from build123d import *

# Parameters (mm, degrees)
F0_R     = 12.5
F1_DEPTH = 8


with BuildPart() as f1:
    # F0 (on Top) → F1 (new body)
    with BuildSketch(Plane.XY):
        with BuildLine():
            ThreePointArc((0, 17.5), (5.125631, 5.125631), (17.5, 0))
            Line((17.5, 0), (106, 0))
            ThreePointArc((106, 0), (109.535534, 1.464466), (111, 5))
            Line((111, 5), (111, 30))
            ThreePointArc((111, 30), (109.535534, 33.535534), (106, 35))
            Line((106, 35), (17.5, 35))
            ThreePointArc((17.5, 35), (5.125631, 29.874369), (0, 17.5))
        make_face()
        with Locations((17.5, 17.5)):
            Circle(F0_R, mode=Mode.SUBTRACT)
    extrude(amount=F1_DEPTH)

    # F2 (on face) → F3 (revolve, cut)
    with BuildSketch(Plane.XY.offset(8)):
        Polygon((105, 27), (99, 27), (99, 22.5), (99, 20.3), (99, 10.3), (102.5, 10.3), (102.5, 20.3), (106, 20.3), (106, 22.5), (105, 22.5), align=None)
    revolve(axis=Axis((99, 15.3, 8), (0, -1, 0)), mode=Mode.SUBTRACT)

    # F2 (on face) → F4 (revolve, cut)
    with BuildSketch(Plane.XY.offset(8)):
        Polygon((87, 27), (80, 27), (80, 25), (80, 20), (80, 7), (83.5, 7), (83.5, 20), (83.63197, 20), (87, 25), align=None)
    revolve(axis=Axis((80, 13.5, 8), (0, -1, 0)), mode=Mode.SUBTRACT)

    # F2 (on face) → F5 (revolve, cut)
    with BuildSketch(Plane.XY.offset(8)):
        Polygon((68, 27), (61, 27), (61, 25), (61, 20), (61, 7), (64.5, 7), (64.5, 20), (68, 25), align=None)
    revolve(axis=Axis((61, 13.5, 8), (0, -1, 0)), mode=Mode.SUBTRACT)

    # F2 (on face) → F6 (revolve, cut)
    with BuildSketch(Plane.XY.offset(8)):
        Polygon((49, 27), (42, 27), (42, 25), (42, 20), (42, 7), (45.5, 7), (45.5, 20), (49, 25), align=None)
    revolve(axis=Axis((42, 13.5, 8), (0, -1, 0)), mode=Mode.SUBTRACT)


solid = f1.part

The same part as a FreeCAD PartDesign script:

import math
import FreeCAD as App
import Part
import Sketcher
Q = App.Units.Quantity

doc = App.newDocument("Part")
body = doc.addObject("PartDesign::Body", "Body")

sketch1 = body.newObject("Sketcher::SketchObject", "Sketch")
sketch1.AttachmentSupport = (doc.getObject("XY_Plane"), [""])
sketch1.MapMode = "FlatFace"
sketch1.addGeometry([
    Part.ArcOfCircle(Part.Circle(App.Vector(17.499999, 17.499999, 0), App.Vector(0, 0, 1), 17.499999), math.radians(179.999996), math.radians(270.000004)),
    Part.LineSegment(App.Vector(17.5, 0, 0), App.Vector(106, 0, 0)),
    Part.ArcOfCircle(Part.Circle(App.Vector(106, 5, 0), App.Vector(0, 0, 1), 5), math.radians(-90.000004), math.radians(0.000004)),
    Part.LineSegment(App.Vector(111, 5, 0), App.Vector(111, 30, 0)),
    Part.ArcOfCircle(Part.Circle(App.Vector(106, 30, 0), App.Vector(0, 0, 1), 5), math.radians(-0.000004), math.radians(90.000004)),
    Part.LineSegment(App.Vector(106, 35, 0), App.Vector(17.5, 35, 0)),
    Part.ArcOfCircle(Part.Circle(App.Vector(17.499999, 17.500001, 0), App.Vector(0, 0, 1), 17.499999), math.radians(89.999996), math.radians(180.000004)),
    Part.Circle(App.Vector(17.5, 17.5, 0), App.Vector(0, 0, 1), 12.5),
], False)
sketch1.addConstraint([
    Sketcher.Constraint("Tangent", 0, 2, 1, 1),
    Sketcher.Constraint("Tangent", 1, 2, 2, 1),
    Sketcher.Constraint("Tangent", 2, 2, 3, 1),
    Sketcher.Constraint("Tangent", 3, 2, 4, 1),
    Sketcher.Constraint("Tangent", 4, 2, 5, 1),
    Sketcher.Constraint("Tangent", 5, 2, 6, 1),
    Sketcher.Constraint("Tangent", 6, 2, 0, 1),
    Sketcher.Constraint("Horizontal", 1),
    Sketcher.Constraint("Vertical", 3),
    Sketcher.Constraint("Horizontal", 5),
    Sketcher.Constraint("Coincident", 7, 3, 0, 3),
    Sketcher.Constraint("Equal", 2, 4),
    Sketcher.Constraint("Equal", 0, 6),
    Sketcher.Constraint("PointOnObject", 0, 2, -1),
    Sketcher.Constraint("PointOnObject", 6, 2, -2),
    Sketcher.Constraint("Horizontal", 7, 3, 6, 2),
    Sketcher.Constraint("Diameter", 7, Q("25 mm")),
    Sketcher.Constraint("Radius", 2, Q("5 mm")),
    Sketcher.Constraint("Radius", 0, Q("17.499999 mm")),
    Sketcher.Constraint("DistanceX", 1, 1, 1, 2, Q("88.5 mm")),
])
pad1 = body.newObject("PartDesign::Pad", "Pad")
pad1.Profile = sketch1
pad1.Length = 8

sketch2 = body.newObject("Sketcher::SketchObject", "Sketch001")
sketch2.AttachmentSupport = (doc.getObject("XY_Plane"), [""])
sketch2.MapMode = "FlatFace"
sketch2.AttachmentOffset = App.Placement(App.Vector(0, 0, 8), App.Rotation())
sketch2.addGeometry([
    Part.LineSegment(App.Vector(105, 27, 0), App.Vector(99, 27, 0)),
    Part.LineSegment(App.Vector(99, 27, 0), App.Vector(99, 10.3, 0)),
    Part.LineSegment(App.Vector(99, 10.3, 0), App.Vector(102.5, 10.3, 0)),
    Part.LineSegment(App.Vector(102.5, 10.3, 0), App.Vector(102.5, 20.3, 0)),
    Part.LineSegment(App.Vector(102.5, 20.3, 0), App.Vector(106, 20.3, 0)),
    Part.LineSegment(App.Vector(106, 20.3, 0), App.Vector(106, 22.5, 0)),
    Part.LineSegment(App.Vector(106, 22.5, 0), App.Vector(105, 22.5, 0)),
    Part.LineSegment(App.Vector(105, 22.5, 0), App.Vector(105, 27, 0)),
], False)
sketch2.addGeometry(Part.LineSegment(App.Vector(99, 27, 0), App.Vector(99, 10.3, 0)), True)
sketch2.addConstraint([
    Sketcher.Constraint("Coincident", 0, 2, 1, 1),
    Sketcher.Constraint("Coincident", 1, 2, 2, 1),
    Sketcher.Constraint("Coincident", 2, 2, 3, 1),
    Sketcher.Constraint("Coincident", 3, 2, 4, 1),
    Sketcher.Constraint("Coincident", 4, 2, 5, 1),
    Sketcher.Constraint("Coincident", 5, 2, 6, 1),
    Sketcher.Constraint("Coincident", 6, 2, 7, 1),
    Sketcher.Constraint("Coincident", 7, 2, 0, 1),
    Sketcher.Constraint("Horizontal", 0),
    Sketcher.Constraint("Vertical", 1),
    Sketcher.Constraint("Horizontal", 2),
    Sketcher.Constraint("Vertical", 3),
    Sketcher.Constraint("Horizontal", 4),
    Sketcher.Constraint("Vertical", 5),
    Sketcher.Constraint("Horizontal", 6),
    Sketcher.Constraint("Vertical", 7),
    Sketcher.Constraint("Vertical", 8),
    Sketcher.Constraint("Coincident", 8, 1, 0, 2),
    Sketcher.Constraint("Horizontal", 2, 2, 8, 2),
    Sketcher.Constraint("Equal", 2, 4),
    Sketcher.Constraint("DistanceX", 0, 2, 0, 1, Q("6 mm")),
    Sketcher.Constraint("DistanceX", 6, 2, 6, 1, Q("1 mm")),
    Sketcher.Constraint("DistanceY", 3, 1, 3, 2, Q("10 mm")),
    Sketcher.Constraint("DistanceY", 1, 2, 1, 1, Q("16.7 mm")),
    Sketcher.Constraint("DistanceY", 5, 1, 5, 2, Q("2.2 mm")),
    Sketcher.Constraint("DistanceX", -1, 1, 0, 2, Q("99 mm")),
    Sketcher.Constraint("DistanceY", -1, 1, 0, 2, Q("27 mm")),
])
groove = body.newObject("PartDesign::Groove", "Groove")
groove.Profile = sketch2
groove.ReferenceAxis = (sketch2, ["Axis0"])
groove.Angle = 360

sketch3 = body.newObject("Sketcher::SketchObject", "Sketch002")
sketch3.AttachmentSupport = (doc.getObject("XY_Plane"), [""])
sketch3.MapMode = "FlatFace"
sketch3.AttachmentOffset = App.Placement(App.Vector(0, 0, 8), App.Rotation())
sketch3.addGeometry([
    Part.LineSegment(App.Vector(87, 27, 0), App.Vector(80, 27, 0)),
    Part.LineSegment(App.Vector(80, 27, 0), App.Vector(80, 7, 0)),
    Part.LineSegment(App.Vector(80, 7, 0), App.Vector(83.5, 7, 0)),
    Part.LineSegment(App.Vector(83.5, 7, 0), App.Vector(83.5, 20, 0)),
    Part.LineSegment(App.Vector(83.5, 20, 0), App.Vector(83.63197, 20, 0)),
    Part.LineSegment(App.Vector(83.63197, 20, 0), App.Vector(87, 25, 0)),
    Part.LineSegment(App.Vector(87, 25, 0), App.Vector(87, 27, 0)),
], False)
sketch3.addGeometry(Part.LineSegment(App.Vector(80, 27, 0), App.Vector(80, 7, 0)), True)
sketch3.addConstraint([
    Sketcher.Constraint("Coincident", 0, 2, 1, 1),
    Sketcher.Constraint("Coincident", 1, 2, 2, 1),
    Sketcher.Constraint("Coincident", 2, 2, 3, 1),
    Sketcher.Constraint("Coincident", 3, 2, 4, 1),
    Sketcher.Constraint("Coincident", 4, 2, 5, 1),
    Sketcher.Constraint("Coincident", 5, 2, 6, 1),
    Sketcher.Constraint("Coincident", 6, 2, 0, 1),
    Sketcher.Constraint("Horizontal", 0),
    Sketcher.Constraint("Vertical", 1),
    Sketcher.Constraint("Horizontal", 2),
    Sketcher.Constraint("Vertical", 3),
    Sketcher.Constraint("Horizontal", 4),
    Sketcher.Constraint("Vertical", 6),
    Sketcher.Constraint("Vertical", 7),
    Sketcher.Constraint("Coincident", 7, 1, 0, 2),
    Sketcher.Constraint("Horizontal", 2, 2, 7, 2),
    Sketcher.Constraint("DistanceX", 0, 2, 0, 1, Q("7 mm")),
    Sketcher.Constraint("DistanceY", 1, 2, 1, 1, Q("20 mm")),
    Sketcher.Constraint("DistanceY", 3, 1, 3, 2, Q("13 mm")),
    Sketcher.Constraint("DistanceY", 6, 1, 6, 2, Q("2 mm")),
    Sketcher.Constraint("DistanceX", 2, 1, 2, 2, Q("3.5 mm")),
    Sketcher.Constraint("DistanceX", -1, 1, 0, 2, Q("80 mm")),
    Sketcher.Constraint("DistanceY", -1, 1, 0, 2, Q("27 mm")),
    Sketcher.Constraint("DistanceX", 4, 1, 4, 2, Q("0.13197 mm")),
])
groove2 = body.newObject("PartDesign::Groove", "Groove001")
groove2.Profile = sketch3
groove2.ReferenceAxis = (sketch3, ["Axis0"])
groove2.Angle = 360

sketch4 = body.newObject("Sketcher::SketchObject", "Sketch003")
sketch4.AttachmentSupport = (doc.getObject("XY_Plane"), [""])
sketch4.MapMode = "FlatFace"
sketch4.AttachmentOffset = App.Placement(App.Vector(0, 0, 8), App.Rotation())
sketch4.addGeometry([
    Part.LineSegment(App.Vector(68, 27, 0), App.Vector(61, 27, 0)),
    Part.LineSegment(App.Vector(61, 27, 0), App.Vector(61, 7, 0)),
    Part.LineSegment(App.Vector(61, 7, 0), App.Vector(64.5, 7, 0)),
    Part.LineSegment(App.Vector(64.5, 7, 0), App.Vector(64.5, 20, 0)),
    Part.LineSegment(App.Vector(64.5, 20, 0), App.Vector(68, 25, 0)),
    Part.LineSegment(App.Vector(68, 25, 0), App.Vector(68, 27, 0)),
], False)
sketch4.addGeometry(Part.LineSegment(App.Vector(61, 27, 0), App.Vector(61, 7, 0)), True)
sketch4.addConstraint([
    Sketcher.Constraint("Coincident", 0, 2, 1, 1),
    Sketcher.Constraint("Coincident", 1, 2, 2, 1),
    Sketcher.Constraint("Coincident", 2, 2, 3, 1),
    Sketcher.Constraint("Coincident", 3, 2, 4, 1),
    Sketcher.Constraint("Coincident", 4, 2, 5, 1),
    Sketcher.Constraint("Coincident", 5, 2, 0, 1),
    Sketcher.Constraint("Horizontal", 0),
    Sketcher.Constraint("Vertical", 1),
    Sketcher.Constraint("Horizontal", 2),
    Sketcher.Constraint("Vertical", 3),
    Sketcher.Constraint("Vertical", 5),
    Sketcher.Constraint("Vertical", 6),
    Sketcher.Constraint("Coincident", 6, 1, 0, 2),
    Sketcher.Constraint("Horizontal", 2, 2, 6, 2),
    Sketcher.Constraint("DistanceX", 0, 2, 0, 1, Q("7 mm")),
    Sketcher.Constraint("DistanceY", 1, 2, 1, 1, Q("20 mm")),
    Sketcher.Constraint("DistanceY", 3, 1, 3, 2, Q("13 mm")),
    Sketcher.Constraint("DistanceY", 5, 1, 5, 2, Q("2 mm")),
    Sketcher.Constraint("DistanceX", 2, 1, 2, 2, Q("3.5 mm")),
    Sketcher.Constraint("DistanceX", -1, 1, 0, 2, Q("61 mm")),
    Sketcher.Constraint("DistanceY", -1, 1, 0, 2, Q("27 mm")),
])
groove3 = body.newObject("PartDesign::Groove", "Groove002")
groove3.Profile = sketch4
groove3.ReferenceAxis = (sketch4, ["Axis0"])
groove3.Angle = 360

sketch5 = body.newObject("Sketcher::SketchObject", "Sketch004")
sketch5.AttachmentSupport = (doc.getObject("XY_Plane"), [""])
sketch5.MapMode = "FlatFace"
sketch5.AttachmentOffset = App.Placement(App.Vector(0, 0, 8), App.Rotation())
sketch5.addGeometry([
    Part.LineSegment(App.Vector(49, 27, 0), App.Vector(42, 27, 0)),
    Part.LineSegment(App.Vector(42, 27, 0), App.Vector(42, 7, 0)),
    Part.LineSegment(App.Vector(42, 7, 0), App.Vector(45.5, 7, 0)),
    Part.LineSegment(App.Vector(45.5, 7, 0), App.Vector(45.5, 20, 0)),
    Part.LineSegment(App.Vector(45.5, 20, 0), App.Vector(49, 25, 0)),
    Part.LineSegment(App.Vector(49, 25, 0), App.Vector(49, 27, 0)),
], False)
sketch5.addGeometry(Part.LineSegment(App.Vector(42, 27, 0), App.Vector(42, 7, 0)), True)
sketch5.addConstraint([
    Sketcher.Constraint("Coincident", 0, 2, 1, 1),
    Sketcher.Constraint("Coincident", 1, 2, 2, 1),
    Sketcher.Constraint("Coincident", 2, 2, 3, 1),
    Sketcher.Constraint("Coincident", 3, 2, 4, 1),
    Sketcher.Constraint("Coincident", 4, 2, 5, 1),
    Sketcher.Constraint("Coincident", 5, 2, 0, 1),
    Sketcher.Constraint("Horizontal", 0),
    Sketcher.Constraint("Vertical", 1),
    Sketcher.Constraint("Horizontal", 2),
    Sketcher.Constraint("Vertical", 3),
    Sketcher.Constraint("Vertical", 5),
    Sketcher.Constraint("Vertical", 6),
    Sketcher.Constraint("Coincident", 6, 1, 0, 2),
    Sketcher.Constraint("Horizontal", 2, 2, 6, 2),
    Sketcher.Constraint("DistanceX", 0, 2, 0, 1, Q("7 mm")),
    Sketcher.Constraint("DistanceY", 1, 2, 1, 1, Q("20 mm")),
    Sketcher.Constraint("DistanceY", 3, 1, 3, 2, Q("13 mm")),
    Sketcher.Constraint("DistanceY", 5, 1, 5, 2, Q("2 mm")),
    Sketcher.Constraint("DistanceX", 2, 1, 2, 2, Q("3.5 mm")),
    Sketcher.Constraint("DistanceX", -1, 1, 0, 2, Q("42 mm")),
    Sketcher.Constraint("DistanceY", -1, 1, 0, 2, Q("27 mm")),
])
groove4 = body.newObject("PartDesign::Groove", "Groove003")
groove4.Profile = sketch5
groove4.ReferenceAxis = (sketch5, ["Axis0"])
groove4.Angle = 360

doc.recompute()
